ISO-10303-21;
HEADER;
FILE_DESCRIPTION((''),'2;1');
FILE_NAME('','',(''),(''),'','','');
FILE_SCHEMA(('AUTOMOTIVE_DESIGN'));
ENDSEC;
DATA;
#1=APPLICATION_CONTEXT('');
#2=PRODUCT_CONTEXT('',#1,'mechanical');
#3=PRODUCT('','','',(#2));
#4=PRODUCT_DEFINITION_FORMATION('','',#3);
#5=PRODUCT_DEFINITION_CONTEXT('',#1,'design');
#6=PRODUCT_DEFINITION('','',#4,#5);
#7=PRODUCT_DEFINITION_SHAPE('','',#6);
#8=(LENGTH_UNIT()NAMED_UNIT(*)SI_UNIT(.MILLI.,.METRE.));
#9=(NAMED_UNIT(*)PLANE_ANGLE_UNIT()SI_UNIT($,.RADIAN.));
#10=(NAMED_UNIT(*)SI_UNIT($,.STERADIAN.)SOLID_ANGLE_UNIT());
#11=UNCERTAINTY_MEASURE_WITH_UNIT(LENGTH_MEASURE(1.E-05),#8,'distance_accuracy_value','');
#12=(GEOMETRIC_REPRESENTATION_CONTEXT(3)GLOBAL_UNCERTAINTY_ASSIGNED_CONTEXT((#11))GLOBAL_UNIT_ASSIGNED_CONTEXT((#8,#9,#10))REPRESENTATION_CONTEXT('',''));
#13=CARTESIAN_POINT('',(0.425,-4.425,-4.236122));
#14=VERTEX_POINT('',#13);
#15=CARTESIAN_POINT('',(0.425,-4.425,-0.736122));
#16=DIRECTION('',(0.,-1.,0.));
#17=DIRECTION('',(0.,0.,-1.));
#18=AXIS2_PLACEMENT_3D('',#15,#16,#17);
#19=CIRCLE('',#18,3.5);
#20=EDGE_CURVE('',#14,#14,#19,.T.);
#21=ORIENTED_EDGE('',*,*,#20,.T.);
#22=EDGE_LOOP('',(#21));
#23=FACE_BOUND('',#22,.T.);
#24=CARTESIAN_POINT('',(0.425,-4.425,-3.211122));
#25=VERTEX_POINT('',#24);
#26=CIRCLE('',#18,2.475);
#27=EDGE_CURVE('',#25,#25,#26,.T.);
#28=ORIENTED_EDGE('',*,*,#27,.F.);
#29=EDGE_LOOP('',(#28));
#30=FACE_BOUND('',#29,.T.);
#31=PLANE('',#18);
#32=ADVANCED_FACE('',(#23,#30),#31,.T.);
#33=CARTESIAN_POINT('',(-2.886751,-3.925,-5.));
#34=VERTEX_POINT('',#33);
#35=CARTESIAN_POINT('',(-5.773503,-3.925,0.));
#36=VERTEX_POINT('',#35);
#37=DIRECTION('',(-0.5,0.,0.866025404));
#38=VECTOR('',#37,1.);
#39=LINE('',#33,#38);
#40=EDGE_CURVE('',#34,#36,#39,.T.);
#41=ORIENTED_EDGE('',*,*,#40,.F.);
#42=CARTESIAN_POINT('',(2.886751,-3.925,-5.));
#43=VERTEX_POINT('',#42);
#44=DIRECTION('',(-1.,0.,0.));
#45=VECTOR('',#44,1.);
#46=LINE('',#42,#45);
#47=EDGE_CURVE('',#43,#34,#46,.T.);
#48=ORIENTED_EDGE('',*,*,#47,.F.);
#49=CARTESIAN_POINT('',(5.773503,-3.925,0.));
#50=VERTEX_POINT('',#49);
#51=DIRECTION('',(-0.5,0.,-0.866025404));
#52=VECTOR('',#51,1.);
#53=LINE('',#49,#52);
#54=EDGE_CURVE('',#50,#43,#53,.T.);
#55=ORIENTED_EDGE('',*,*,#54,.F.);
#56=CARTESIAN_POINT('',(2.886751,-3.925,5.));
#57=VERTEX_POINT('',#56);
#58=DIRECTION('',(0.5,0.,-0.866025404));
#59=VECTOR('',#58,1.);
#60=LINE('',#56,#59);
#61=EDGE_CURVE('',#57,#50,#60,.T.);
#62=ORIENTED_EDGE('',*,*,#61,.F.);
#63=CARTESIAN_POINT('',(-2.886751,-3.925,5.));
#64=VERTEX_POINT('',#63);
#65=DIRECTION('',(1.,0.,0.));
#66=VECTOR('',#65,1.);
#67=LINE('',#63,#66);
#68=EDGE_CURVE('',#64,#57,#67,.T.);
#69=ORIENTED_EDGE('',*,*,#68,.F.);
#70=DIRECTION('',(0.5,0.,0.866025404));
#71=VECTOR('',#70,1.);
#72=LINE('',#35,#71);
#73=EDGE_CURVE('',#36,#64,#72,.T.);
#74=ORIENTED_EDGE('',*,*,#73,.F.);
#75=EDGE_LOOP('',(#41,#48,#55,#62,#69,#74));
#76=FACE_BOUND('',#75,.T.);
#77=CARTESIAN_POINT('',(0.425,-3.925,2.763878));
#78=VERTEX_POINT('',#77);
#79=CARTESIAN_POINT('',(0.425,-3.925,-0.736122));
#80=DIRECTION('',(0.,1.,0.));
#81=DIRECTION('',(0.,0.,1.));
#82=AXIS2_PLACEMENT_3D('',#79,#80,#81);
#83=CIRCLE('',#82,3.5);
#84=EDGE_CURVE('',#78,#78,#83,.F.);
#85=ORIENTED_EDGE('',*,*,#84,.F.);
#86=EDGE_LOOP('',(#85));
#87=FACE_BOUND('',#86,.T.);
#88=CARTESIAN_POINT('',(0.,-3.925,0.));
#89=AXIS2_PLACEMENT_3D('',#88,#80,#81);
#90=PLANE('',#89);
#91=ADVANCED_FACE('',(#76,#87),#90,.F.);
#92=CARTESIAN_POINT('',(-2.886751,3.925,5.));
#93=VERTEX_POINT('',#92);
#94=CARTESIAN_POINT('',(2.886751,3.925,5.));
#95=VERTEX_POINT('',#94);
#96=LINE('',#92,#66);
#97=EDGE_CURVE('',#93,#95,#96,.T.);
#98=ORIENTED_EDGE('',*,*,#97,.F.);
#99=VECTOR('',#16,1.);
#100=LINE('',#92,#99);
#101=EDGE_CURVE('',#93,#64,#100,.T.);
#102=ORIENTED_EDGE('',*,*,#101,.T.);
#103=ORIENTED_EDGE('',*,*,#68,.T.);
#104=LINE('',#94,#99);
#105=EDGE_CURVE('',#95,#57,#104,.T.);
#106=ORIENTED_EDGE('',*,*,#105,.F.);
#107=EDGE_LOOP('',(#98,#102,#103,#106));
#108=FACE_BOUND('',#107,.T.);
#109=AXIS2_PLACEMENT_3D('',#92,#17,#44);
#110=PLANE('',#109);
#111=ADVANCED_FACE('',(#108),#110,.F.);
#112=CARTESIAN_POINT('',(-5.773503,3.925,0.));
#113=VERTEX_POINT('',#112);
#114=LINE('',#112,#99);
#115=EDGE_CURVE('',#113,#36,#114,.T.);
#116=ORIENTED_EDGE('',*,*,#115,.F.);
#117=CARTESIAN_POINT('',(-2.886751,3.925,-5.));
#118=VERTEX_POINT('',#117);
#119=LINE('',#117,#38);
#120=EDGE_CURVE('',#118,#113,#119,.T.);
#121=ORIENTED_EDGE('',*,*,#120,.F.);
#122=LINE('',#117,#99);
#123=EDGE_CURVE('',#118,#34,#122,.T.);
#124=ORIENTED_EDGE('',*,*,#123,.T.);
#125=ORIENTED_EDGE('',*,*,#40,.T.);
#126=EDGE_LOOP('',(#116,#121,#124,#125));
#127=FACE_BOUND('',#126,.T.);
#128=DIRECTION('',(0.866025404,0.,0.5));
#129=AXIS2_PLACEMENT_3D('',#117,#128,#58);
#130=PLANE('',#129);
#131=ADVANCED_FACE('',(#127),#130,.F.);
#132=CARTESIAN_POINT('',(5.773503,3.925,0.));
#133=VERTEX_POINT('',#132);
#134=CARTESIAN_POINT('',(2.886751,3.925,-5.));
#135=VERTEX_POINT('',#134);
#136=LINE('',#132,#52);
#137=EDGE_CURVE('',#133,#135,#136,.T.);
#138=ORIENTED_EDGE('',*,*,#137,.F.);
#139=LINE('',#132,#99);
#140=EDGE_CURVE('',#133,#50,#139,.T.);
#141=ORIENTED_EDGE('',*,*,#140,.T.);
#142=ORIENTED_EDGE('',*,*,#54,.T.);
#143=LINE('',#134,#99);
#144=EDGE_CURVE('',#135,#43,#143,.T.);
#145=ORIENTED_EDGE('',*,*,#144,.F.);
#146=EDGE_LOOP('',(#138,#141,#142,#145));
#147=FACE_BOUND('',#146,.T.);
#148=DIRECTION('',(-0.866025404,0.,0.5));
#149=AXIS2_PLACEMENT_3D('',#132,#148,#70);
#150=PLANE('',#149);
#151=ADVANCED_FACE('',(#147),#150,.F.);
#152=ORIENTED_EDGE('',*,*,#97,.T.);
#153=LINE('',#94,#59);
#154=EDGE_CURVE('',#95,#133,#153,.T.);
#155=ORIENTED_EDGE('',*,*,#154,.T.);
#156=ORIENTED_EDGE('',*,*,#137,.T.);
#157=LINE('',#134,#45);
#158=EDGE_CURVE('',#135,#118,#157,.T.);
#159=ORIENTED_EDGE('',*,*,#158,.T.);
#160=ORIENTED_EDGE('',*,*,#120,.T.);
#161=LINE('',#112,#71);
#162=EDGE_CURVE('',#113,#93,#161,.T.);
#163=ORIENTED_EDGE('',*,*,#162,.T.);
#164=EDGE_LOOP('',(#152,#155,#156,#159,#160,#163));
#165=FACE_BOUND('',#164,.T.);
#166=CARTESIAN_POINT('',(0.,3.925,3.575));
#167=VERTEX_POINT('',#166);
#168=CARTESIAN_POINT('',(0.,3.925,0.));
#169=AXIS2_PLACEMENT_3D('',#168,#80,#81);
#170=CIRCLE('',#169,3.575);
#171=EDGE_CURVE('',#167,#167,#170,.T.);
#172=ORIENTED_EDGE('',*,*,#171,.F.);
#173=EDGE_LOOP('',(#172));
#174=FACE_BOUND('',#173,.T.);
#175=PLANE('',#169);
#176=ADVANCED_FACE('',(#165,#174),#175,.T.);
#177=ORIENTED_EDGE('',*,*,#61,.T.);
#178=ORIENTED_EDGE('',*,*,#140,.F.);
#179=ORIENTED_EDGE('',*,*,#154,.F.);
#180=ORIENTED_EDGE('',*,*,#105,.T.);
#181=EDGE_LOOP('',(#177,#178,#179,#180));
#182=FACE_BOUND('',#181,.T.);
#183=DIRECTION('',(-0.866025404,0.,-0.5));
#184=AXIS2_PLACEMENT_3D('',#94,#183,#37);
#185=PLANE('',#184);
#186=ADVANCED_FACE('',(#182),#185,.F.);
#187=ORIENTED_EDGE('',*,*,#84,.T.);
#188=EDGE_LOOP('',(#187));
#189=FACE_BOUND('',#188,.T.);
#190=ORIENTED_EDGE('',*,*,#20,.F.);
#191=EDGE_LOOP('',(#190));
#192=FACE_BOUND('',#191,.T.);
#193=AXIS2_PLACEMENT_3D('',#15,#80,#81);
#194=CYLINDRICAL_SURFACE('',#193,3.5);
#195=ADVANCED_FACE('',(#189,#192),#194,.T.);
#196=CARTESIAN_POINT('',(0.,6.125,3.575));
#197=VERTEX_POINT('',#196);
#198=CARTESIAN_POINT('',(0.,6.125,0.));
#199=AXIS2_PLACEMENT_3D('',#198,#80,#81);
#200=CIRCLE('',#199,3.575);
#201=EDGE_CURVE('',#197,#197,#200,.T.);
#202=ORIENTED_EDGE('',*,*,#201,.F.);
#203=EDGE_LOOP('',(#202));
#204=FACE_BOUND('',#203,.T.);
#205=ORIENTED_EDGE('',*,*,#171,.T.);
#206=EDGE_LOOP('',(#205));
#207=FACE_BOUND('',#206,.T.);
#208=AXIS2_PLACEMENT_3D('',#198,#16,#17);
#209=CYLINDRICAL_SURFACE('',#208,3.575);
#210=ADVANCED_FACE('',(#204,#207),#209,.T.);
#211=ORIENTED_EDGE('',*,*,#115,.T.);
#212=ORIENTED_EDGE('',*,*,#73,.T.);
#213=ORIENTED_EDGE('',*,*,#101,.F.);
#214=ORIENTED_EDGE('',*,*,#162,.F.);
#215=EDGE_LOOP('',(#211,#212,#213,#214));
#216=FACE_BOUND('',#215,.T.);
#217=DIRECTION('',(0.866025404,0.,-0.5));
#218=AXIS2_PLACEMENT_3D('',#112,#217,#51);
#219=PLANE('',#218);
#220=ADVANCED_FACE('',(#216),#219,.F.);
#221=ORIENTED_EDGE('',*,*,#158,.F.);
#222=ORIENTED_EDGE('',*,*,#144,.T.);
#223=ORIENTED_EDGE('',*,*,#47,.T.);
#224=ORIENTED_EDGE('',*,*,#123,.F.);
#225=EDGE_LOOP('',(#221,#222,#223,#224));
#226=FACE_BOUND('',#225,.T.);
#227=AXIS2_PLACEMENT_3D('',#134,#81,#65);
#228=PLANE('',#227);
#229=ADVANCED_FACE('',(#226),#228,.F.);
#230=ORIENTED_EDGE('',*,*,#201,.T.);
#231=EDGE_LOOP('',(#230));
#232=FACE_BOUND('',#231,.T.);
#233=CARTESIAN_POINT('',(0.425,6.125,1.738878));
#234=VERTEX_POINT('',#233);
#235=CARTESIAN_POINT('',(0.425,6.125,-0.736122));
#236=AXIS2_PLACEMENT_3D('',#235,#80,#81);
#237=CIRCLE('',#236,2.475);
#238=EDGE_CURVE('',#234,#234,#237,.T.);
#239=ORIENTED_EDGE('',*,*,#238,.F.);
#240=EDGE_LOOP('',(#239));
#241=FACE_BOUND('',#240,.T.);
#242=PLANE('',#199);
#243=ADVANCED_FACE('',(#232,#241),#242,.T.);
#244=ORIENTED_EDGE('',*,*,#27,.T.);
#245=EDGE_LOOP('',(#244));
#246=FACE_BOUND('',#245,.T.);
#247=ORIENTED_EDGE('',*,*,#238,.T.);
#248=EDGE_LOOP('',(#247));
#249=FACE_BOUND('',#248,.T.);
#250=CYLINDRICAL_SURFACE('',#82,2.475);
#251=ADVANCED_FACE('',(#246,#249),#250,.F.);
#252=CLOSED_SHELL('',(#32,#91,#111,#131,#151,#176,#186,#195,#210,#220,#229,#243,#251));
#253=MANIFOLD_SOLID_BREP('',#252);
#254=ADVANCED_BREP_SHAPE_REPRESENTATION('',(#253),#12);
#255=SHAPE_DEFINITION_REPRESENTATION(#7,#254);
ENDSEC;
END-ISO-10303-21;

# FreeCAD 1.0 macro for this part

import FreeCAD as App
import Part
import Sketcher
Q = App.Units.Quantity


def add_polygon(sketch, points):
    """Adds a closed chain of lines whose ends are joined by coincident constraints."""
    first, n = sketch.GeometryCount, len(points)
    for a, b in zip(points, points[1:] + points[:1]):
        sketch.addGeometry(Part.LineSegment(App.Vector(*a, 0), App.Vector(*b, 0)), False)
    for i in range(n):
        sketch.addConstraint(Sketcher.Constraint("Coincident", first + i, 2, first + (i + 1) % n, 1))

doc = App.newDocument("Part")
body = doc.addObject("PartDesign::Body", "Body")

# Sketch on XZ plane
sketch1 = body.newObject("Sketcher::SketchObject", "Sketch")
sketch1.AttachmentSupport = (doc.getObject("XZ_Plane"), [""])
sketch1.MapMode = "FlatFace"
add_polygon(sketch1, [(3, -5), (-3, -5), (-6, 0), (-3, 5), (3, 5), (6, 0)])  # lines 0-5
sketch1.addConstraint([
    Sketcher.Constraint("Horizontal", 0),
    Sketcher.Constraint("Horizontal", 3),
    Sketcher.Constraint("Symmetric", 0, 2, 3, 2, -1, 1),
    Sketcher.Constraint("Symmetric", 1, 2, 4, 2, -1, 1),
    Sketcher.Constraint("PointOnObject", 1, 2, -1),
    Sketcher.Constraint("Parallel", 2, 5),
    Sketcher.Constraint("Vertical", 0, 2, 2, 2),
    Sketcher.Constraint("Angle", 1, Q("120 deg")),
    Sketcher.Constraint("DistanceY", 0, 2, -1, 1, 5.0),
    Sketcher.Constraint("DistanceX", 0, 2, 0, 1, 5.773503),
])
pad1 = body.newObject("PartDesign::Pad", "Pad")
pad1.Profile = sketch1
pad1.Length = 7.85
pad1.Midplane = True

# Sketch on XZ plane
sketch2 = body.newObject("Sketcher::SketchObject", "Sketch001")
sketch2.AttachmentSupport = (doc.getObject("XZ_Plane"), [""])
sketch2.MapMode = "FlatFace"
sketch2.AttachmentOffset = App.Placement(App.Vector(0, 0, -3.925), App.Rotation())
sketch2.addGeometry(Part.Circle(App.Vector(0, 0, 0), App.Vector(0, 0, 1), 3.6), False)
sketch2.addConstraint([
    Sketcher.Constraint("Coincident", 0, 3, -1, 1),
    Sketcher.Constraint("Diameter", 0, 7.15),
])
pad2 = body.newObject("PartDesign::Pad", "Pad001")
pad2.Profile = sketch2
pad2.Length = 2.2
pad2.Reversed = True

# Sketch on XZ plane
sketch3 = body.newObject("Sketcher::SketchObject", "Sketch002")
sketch3.AttachmentSupport = (doc.getObject("XZ_Plane"), [""])
sketch3.MapMode = "FlatFace"
sketch3.AttachmentOffset = App.Placement(App.Vector(0, 0, -6.125), App.Rotation())
sketch3.addGeometry(Part.Circle(App.Vector(0.4, -0.7, 0), App.Vector(0, 0, 1), 2.5), False)
sketch3.addConstraint([
    Sketcher.Constraint("Diameter", 0, 4.95),
    Sketcher.Constraint("DistanceX", -1, 1, 0, 3, 0.425),
    Sketcher.Constraint("DistanceY", 0, 3, -1, 1, 0.736122),
])
pocket1 = body.newObject("PartDesign::Pocket", "Pocket")
pocket1.Profile = sketch3
pocket1.Type = "ThroughAll"
pocket1.Reversed = True

# Sketch on XZ plane
sketch4 = body.newObject("Sketcher::SketchObject", "Sketch003")
sketch4.AttachmentSupport = (doc.getObject("XZ_Plane"), [""])
sketch4.MapMode = "FlatFace"
sketch4.AttachmentOffset = App.Placement(App.Vector(0, 0, 3.925), App.Rotation())
sketch4.addGeometry([
    Part.Circle(App.Vector(0.4, -0.7, 0), App.Vector(0, 0, 1), 3.5),
    Part.Circle(App.Vector(0.4, -0.7, 0), App.Vector(0, 0, 1), 2.5),
], False)
sketch4.addConstraint([
    Sketcher.Constraint("Coincident", 1, 3, 0, 3),
    Sketcher.Constraint("Diameter", 0, 7.0),
    Sketcher.Constraint("Diameter", 1, 4.95),
    Sketcher.Constraint("DistanceX", -1, 1, 0, 3, 0.425),
    Sketcher.Constraint("DistanceY", 0, 3, -1, 1, 0.736122),
])
pad3 = body.newObject("PartDesign::Pad", "Pad002")
pad3.Profile = sketch4
pad3.Length = 0.5

doc.recompute()
